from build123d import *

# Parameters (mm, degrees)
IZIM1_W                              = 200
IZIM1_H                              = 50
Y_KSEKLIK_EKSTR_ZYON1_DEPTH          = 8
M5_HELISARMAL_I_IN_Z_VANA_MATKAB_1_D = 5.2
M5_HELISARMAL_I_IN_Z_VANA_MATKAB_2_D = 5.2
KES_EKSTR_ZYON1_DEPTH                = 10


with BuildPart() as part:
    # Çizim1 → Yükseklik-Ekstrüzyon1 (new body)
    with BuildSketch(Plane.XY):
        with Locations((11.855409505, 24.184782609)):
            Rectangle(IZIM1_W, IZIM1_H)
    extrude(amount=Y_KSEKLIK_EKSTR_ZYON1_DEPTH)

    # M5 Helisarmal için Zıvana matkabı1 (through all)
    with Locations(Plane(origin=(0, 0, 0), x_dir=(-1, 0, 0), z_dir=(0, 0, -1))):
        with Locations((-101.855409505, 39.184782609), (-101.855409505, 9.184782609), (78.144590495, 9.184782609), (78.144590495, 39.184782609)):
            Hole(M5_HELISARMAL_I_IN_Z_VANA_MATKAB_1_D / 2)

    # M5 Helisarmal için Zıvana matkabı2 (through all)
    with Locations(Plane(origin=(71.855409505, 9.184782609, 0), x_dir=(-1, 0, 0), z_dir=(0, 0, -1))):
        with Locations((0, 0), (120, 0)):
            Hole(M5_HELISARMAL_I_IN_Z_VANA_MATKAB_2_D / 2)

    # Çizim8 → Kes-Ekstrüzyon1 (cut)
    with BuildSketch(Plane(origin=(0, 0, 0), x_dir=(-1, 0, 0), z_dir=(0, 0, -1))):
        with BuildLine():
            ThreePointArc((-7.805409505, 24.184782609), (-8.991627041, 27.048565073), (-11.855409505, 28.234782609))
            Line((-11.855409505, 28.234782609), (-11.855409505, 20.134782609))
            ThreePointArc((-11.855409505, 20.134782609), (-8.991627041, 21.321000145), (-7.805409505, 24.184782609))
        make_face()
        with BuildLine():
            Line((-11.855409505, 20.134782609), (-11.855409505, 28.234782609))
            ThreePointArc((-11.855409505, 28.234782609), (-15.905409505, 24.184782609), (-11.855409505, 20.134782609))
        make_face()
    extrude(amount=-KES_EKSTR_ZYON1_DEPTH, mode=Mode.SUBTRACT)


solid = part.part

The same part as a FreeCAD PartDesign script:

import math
import FreeCAD as App
import Part
import Sketcher
from FreeCAD import Vector
Q = App.Units.Quantity

doc = App.newDocument("Part")
params = doc.addObject("Spreadsheet::Sheet", "Params")
for row, (alias, value) in enumerate([
    ("sketch1_width", "200 mm"),
    ("sketch1_height", "50 mm"),
    ("pad1_length", "8 mm"),
    ("sketch2_diameter", "5.2 mm"),
    ("hole_diameter", "5.2 mm"),
    ("sketch3_diameter", "5.2 mm"),
    ("hole2_diameter", "5.2 mm"),
    ("sketch4_radius", "4.05 mm"),
    ("pocket1_length", "10 mm"),
], start=1):
    params.set(f"A{row}", alias)
    params.set(f"B{row}", "=" + value)
    params.setAlias(f"B{row}", alias)

body = doc.addObject("PartDesign::Body", "Body")

# Sketch on XY plane
sketch1 = body.newObject("Sketcher::SketchObject", "Sketch")
sketch1.AttachmentSupport = (doc.getObject("XY_Plane"), [""])
sketch1.MapMode = "FlatFace"
sketch1.addGeometry([
    Part.LineSegment(Vector(-88.14459, 49.184783, 0), Vector(-88.14459, -0.815217, 0)),
    Part.LineSegment(Vector(-88.14459, -0.815217, 0), Vector(111.85541, -0.815217, 0)),
    Part.LineSegment(Vector(111.85541, -0.815217, 0), Vector(111.85541, 49.184783, 0)),
    Part.LineSegment(Vector(111.85541, 49.184783, 0), Vector(-88.14459, 49.184783, 0)),
], False)
sketch1.addConstraint([
    Sketcher.Constraint("Coincident", 0, 2, 1, 1),
    Sketcher.Constraint("Coincident", 1, 2, 2, 1),
    Sketcher.Constraint("Coincident", 2, 2, 3, 1),
    Sketcher.Constraint("Coincident", 3, 2, 0, 1),
    Sketcher.Constraint("Vertical", 0),
    Sketcher.Constraint("Horizontal", 1),
    Sketcher.Constraint("Vertical", 2),
    Sketcher.Constraint("Horizontal", 3),
    Sketcher.Constraint("DistanceX", 1, 1, 1, 2, Q("200 mm")),
    Sketcher.Constraint("DistanceY", 0, 2, 0, 1, Q("50 mm")),
    Sketcher.Constraint("DistanceX", 0, 2, -1, 1, Q("88.14459 mm")),
    Sketcher.Constraint("DistanceY", 0, 2, -1, 1, Q("0.815217 mm")),
])
sketch1.setExpression("Constraints[8]", "Params.sketch1_width")
sketch1.setExpression("Constraints[9]", "Params.sketch1_height")
pad1 = body.newObject("PartDesign::Pad", "Pad")
pad1.Profile = sketch1
pad1.setExpression("Length", "Params.pad1_length")

# Sketch on XY plane
sketch2 = body.newObject("Sketcher::SketchObject", "Sketch001")
sketch2.AttachmentSupport = (doc.getObject("XY_Plane"), [""])
sketch2.MapMode = "FlatFace"
sketch2.addGeometry([
    Part.Circle(Vector(101.85541, 39.184783, 0), Vector(0, 0, 1), 2.6),
    Part.Circle(Vector(101.85541, 9.184783, 0), Vector(0, 0, 1), 2.6),
    Part.Circle(Vector(-78.14459, 9.184783, 0), Vector(0, 0, 1), 2.6),
    Part.Circle(Vector(-78.14459, 39.184783, 0), Vector(0, 0, 1), 2.6),
], False)
sketch2.addConstraint([
    Sketcher.Constraint("Equal", 0, 1),
    Sketcher.Constraint("Equal", 1, 2),
    Sketcher.Constraint("Equal", 2, 3),
    Sketcher.Constraint("Horizontal", 1, 3, 2, 3),
    Sketcher.Constraint("Horizontal", 0, 3, 3, 3),
    Sketcher.Constraint("Vertical", 0, 3, 1, 3),
    Sketcher.Constraint("Vertical", 2, 3, 3, 3),
    Sketcher.Constraint("Diameter", 0, Q("5.2 mm")),
    Sketcher.Constraint("DistanceY", 1, 3, 0, 3, Q("30 mm")),
    Sketcher.Constraint("DistanceX", 2, 3, 1, 3, Q("180 mm")),
    Sketcher.Constraint("DistanceX", -1, 1, 0, 3, Q("101.85541 mm")),
    Sketcher.Constraint("DistanceY", -1, 1, 0, 3, Q("39.184783 mm")),
])
sketch2.setExpression("Constraints[7]", "Params.sketch2_diameter")
doc.recompute()
hole = body.newObject("PartDesign::Hole", "Hole")
hole.Profile = sketch2
hole.ThreadType = "None"
hole.setExpression("Diameter", "Params.hole_diameter")
hole.DepthType = "ThroughAll"
hole.Reversed = True

# Sketch on XY plane
sketch3 = body.newObject("Sketcher::SketchObject", "Sketch002")
sketch3.AttachmentSupport = (doc.getObject("XY_Plane"), [""])
sketch3.MapMode = "FlatFace"
sketch3.addGeometry([
    Part.Circle(Vector(71.85541, 9.184783, 0), Vector(0, 0, 1), 2.6),
    Part.Circle(Vector(-48.14459, 9.184783, 0), Vector(0, 0, 1), 2.6),
], False)
sketch3.addConstraint([
    Sketcher.Constraint("Equal", 0, 1),
    Sketcher.Constraint("Horizontal", 0, 3, 1, 3),
    Sketcher.Constraint("Diameter", 0, Q("5.2 mm")),
    Sketcher.Constraint("DistanceX", 1, 3, 0, 3, Q("120 mm")),
    Sketcher.Constraint("DistanceX", -1, 1, 0, 3, Q("71.85541 mm")),
    Sketcher.Constraint("DistanceY", -1, 1, 0, 3, Q("9.184783 mm")),
])
sketch3.setExpression("Constraints[2]", "Params.sketch3_diameter")
doc.recompute()
hole2 = body.newObject("PartDesign::Hole", "Hole001")
hole2.Profile = sketch3
hole2.ThreadType = "None"
hole2.setExpression("Diameter", "Params.hole2_diameter")
hole2.DepthType = "ThroughAll"
hole2.Reversed = True

# Sketch on XY plane
sketch4 = body.newObject("Sketcher::SketchObject", "Sketch003")
sketch4.AttachmentSupport = (doc.getObject("XY_Plane"), [""])
sketch4.MapMode = "FlatFace"
sketch4.addGeometry([
    Part.ArcOfCircle(Part.Circle(Vector(11.85541, 24.184783, 0), Vector(0, 0, 1), 4.05), math.radians(90), math.radians(180)),
    Part.ArcOfCircle(Part.Circle(Vector(11.85541, 24.184783, 0), Vector(0, 0, 1), 4.05), math.radians(-90), math.radians(90)),
    Part.ArcOfCircle(Part.Circle(Vector(11.85541, 24.184783, 0), Vector(0, 0, 1), 4.05), math.radians(180), math.radians(270)),
], False)
sketch4.addConstraint([
    Sketcher.Constraint("Tangent", 0, 1, 1, 2),
    Sketcher.Constraint("Tangent", 1, 1, 2, 2),
    Sketcher.Constraint("Tangent", 2, 1, 0, 2),
    Sketcher.Constraint("Horizontal", 1, 3, 2, 1),
    Sketcher.Constraint("Vertical", 2, 3, 0, 1),
    Sketcher.Constraint("Vertical", 0, 1, 1, 1),
    Sketcher.Constraint("Radius", 0, Q("4.05 mm")),
    Sketcher.Constraint("DistanceX", -1, 1, 0, 3, Q("11.85541 mm")),
    Sketcher.Constraint("DistanceY", -1, 1, 0, 3, Q("24.184783 mm")),
])
sketch4.setExpression("Constraints[6]", "Params.sketch4_radius")
pocket1 = body.newObject("PartDesign::Pocket", "Pocket")
pocket1.Profile = sketch4
pocket1.setExpression("Length", "Params.pocket1_length")
pocket1.Reversed = True

doc.recompute()
